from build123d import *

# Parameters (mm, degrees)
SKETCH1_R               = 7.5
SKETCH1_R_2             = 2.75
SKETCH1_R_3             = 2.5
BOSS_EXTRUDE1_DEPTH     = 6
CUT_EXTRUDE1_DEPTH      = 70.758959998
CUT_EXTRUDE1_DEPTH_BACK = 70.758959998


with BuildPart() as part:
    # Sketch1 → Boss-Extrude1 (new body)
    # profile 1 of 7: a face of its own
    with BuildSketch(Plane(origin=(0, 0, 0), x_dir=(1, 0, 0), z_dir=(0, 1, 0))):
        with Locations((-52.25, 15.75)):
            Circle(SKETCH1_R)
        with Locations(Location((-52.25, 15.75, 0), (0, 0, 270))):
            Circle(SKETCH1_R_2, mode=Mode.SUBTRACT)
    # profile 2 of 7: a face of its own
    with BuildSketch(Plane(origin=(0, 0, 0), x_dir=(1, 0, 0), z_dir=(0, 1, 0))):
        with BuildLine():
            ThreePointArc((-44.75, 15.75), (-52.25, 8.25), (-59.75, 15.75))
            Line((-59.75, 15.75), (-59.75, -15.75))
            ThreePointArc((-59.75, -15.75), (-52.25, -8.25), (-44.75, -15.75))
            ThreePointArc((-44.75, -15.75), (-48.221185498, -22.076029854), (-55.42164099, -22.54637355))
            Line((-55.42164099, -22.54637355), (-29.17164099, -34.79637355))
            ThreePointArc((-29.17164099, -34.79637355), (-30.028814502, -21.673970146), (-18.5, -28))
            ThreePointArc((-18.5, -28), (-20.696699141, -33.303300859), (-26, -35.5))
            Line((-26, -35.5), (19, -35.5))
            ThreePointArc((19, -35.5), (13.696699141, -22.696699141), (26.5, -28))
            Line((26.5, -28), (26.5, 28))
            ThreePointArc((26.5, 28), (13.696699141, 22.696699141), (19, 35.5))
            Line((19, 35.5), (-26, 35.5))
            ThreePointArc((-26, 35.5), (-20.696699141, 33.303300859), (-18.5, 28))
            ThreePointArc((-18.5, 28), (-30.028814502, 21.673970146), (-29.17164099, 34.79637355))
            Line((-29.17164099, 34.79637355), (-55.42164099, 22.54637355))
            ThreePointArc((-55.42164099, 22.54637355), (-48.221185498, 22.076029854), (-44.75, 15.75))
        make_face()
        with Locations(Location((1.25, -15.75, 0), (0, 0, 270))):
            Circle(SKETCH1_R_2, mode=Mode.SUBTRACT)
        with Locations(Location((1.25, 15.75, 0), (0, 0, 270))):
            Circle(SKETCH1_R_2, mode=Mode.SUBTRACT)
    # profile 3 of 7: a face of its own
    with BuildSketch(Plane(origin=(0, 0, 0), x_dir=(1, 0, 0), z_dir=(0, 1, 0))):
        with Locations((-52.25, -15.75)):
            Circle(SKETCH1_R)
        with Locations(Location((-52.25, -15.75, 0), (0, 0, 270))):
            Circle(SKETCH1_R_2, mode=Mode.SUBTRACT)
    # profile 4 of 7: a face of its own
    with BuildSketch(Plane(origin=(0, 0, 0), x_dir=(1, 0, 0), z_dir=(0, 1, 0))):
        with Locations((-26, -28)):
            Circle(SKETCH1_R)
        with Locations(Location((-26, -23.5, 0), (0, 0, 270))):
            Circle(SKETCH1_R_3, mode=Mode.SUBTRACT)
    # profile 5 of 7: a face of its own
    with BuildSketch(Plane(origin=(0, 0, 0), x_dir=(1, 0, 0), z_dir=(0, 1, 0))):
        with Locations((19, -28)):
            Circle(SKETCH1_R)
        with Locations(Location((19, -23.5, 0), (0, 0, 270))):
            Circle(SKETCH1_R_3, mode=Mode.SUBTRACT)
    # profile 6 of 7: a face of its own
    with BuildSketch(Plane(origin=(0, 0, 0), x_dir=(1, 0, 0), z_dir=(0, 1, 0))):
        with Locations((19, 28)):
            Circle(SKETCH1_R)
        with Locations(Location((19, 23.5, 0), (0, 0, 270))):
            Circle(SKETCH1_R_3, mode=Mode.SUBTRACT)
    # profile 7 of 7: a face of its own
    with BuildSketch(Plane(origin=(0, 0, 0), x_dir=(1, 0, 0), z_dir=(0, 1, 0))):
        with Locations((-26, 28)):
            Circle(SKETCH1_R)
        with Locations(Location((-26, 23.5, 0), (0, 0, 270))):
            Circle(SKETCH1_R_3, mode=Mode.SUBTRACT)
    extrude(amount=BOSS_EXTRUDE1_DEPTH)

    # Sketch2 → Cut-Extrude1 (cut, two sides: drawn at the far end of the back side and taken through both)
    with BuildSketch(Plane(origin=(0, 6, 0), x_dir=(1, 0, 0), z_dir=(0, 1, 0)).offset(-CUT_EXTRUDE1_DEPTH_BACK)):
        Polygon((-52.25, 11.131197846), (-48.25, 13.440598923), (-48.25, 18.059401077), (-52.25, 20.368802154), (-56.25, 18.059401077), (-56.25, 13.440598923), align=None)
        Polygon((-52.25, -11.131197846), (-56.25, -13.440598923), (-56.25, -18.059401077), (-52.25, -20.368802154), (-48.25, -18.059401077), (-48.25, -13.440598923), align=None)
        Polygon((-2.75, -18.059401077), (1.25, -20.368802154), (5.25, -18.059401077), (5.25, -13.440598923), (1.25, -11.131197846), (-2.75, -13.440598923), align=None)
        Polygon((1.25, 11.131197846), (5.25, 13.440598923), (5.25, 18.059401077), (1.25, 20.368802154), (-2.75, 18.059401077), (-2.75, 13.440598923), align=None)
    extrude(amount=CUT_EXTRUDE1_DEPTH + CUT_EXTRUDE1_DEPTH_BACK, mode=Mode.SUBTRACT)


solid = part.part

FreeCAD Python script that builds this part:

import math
import FreeCAD as App
import Part
import Sketcher

V = App.Vector
Q = App.Units.Quantity

doc = App.newDocument("Part")
params = doc.addObject("Spreadsheet::Sheet", "Params")
for row, (alias, value) in enumerate([
    ("sketch1_diameter", "5 mm"),
    ("sketch1_diameter2", "5.5 mm"),
    ("sketch1_radius", "7.5 mm"),
    ("sketch1_width", "45 mm"),
    ("sketch1_height", "56 mm"),
    ("pad1_length", "6 mm"),
], start=1):
    params.set(f"A{row}", alias)
    params.set(f"B{row}", "=" + value)
    params.setAlias(f"B{row}", alias)

body = doc.addObject("PartDesign::Body", "Body")

sketch1 = body.newObject("Sketcher::SketchObject", "Sketch")
sketch1.AttachmentSupport = (doc.getObject("XZ_Plane"), [""])
sketch1.MapMode = "FlatFace"
sketch1.addGeometry([
    Part.ArcOfCircle(Part.Circle(V(-52.2, -15.8, 0), V(0, 0, 1), 7.5), math.radians(180), math.radians(245)),
    Part.LineSegment(V(-59.8, -15.8, 0), V(-59.8, 15.8, 0)),
    Part.ArcOfCircle(Part.Circle(V(-52.2, 15.8, 0), V(0, 0, 1), 7.5), math.radians(115), math.radians(180)),
    Part.LineSegment(V(-55.4, 22.5, 0), V(-29.2, 34.8, 0)),
    Part.ArcOfCircle(Part.Circle(V(-26, 28, 0), V(0, 0, 1), 7.5), math.radians(90), math.radians(115)),
    Part.LineSegment(V(-26, 35.5, 0), V(19, 35.5, 0)),
    Part.ArcOfCircle(Part.Circle(V(19, 28, 0), V(0, 0, 1), 7.5), math.radians(0), math.radians(90)),
    Part.LineSegment(V(26.5, 28, 0), V(26.5, -28, 0)),
    Part.ArcOfCircle(Part.Circle(V(19, -28, 0), V(0, 0, 1), 7.5), math.radians(-90), math.radians(0)),
    Part.LineSegment(V(19, -35.5, 0), V(-26, -35.5, 0)),
    Part.ArcOfCircle(Part.Circle(V(-26, -28, 0), V(0, 0, 1), 7.5), math.radians(-115), math.radians(-90)),
    Part.LineSegment(V(-29.2, -34.8, 0), V(-55.4, -22.5, 0)),
    Part.Circle(V(-52.2, -15.8, 0), V(0, 0, 1), 2.8),
    Part.Circle(V(1.2, 15.8, 0), V(0, 0, 1), 2.8),
    Part.Circle(V(1.2, -15.8, 0), V(0, 0, 1), 2.8),
    Part.Circle(V(-52.2, 15.8, 0), V(0, 0, 1), 2.8),
    Part.Circle(V(-26, -23.5, 0), V(0, 0, 1), 2.5),
    Part.Circle(V(-26, 23.5, 0), V(0, 0, 1), 2.5),
    Part.Circle(V(19, -23.5, 0), V(0, 0, 1), 2.5),
    Part.Circle(V(19, 23.5, 0), V(0, 0, 1), 2.5),
], False)
sketch1.addConstraint([
    Sketcher.Constraint("Tangent", 0, 1, 1, 1),
    Sketcher.Constraint("Tangent", 1, 2, 2, 2),
    Sketcher.Constraint("Tangent", 2, 1, 3, 1),
    Sketcher.Constraint("Tangent", 3, 2, 4, 2),
    Sketcher.Constraint("Tangent", 4, 1, 5, 1),
    Sketcher.Constraint("Tangent", 5, 2, 6, 2),
    Sketcher.Constraint("Tangent", 6, 1, 7, 1),
    Sketcher.Constraint("Tangent", 7, 2, 8, 2),
    Sketcher.Constraint("Tangent", 8, 1, 9, 1),
    Sketcher.Constraint("Tangent", 9, 2, 10, 2),
    Sketcher.Constraint("Tangent", 10, 1, 11, 1),
    Sketcher.Constraint("Tangent", 11, 2, 0, 2),
    Sketcher.Constraint("Vertical", 1),
    Sketcher.Constraint("Horizontal", 5),
    Sketcher.Constraint("Vertical", 7),
    Sketcher.Constraint("Horizontal", 9),
    Sketcher.Constraint("Coincident", 12, 3, 0, 3),
    Sketcher.Constraint("Coincident", 15, 3, 2, 3),
    Sketcher.Constraint("Equal", 0, 2),
    Sketcher.Constraint("Equal", 2, 4),
    Sketcher.Constraint("Equal", 4, 6),
    Sketcher.Constraint("Equal", 6, 8),
    Sketcher.Constraint("Equal", 8, 10),
    Sketcher.Constraint("Equal", 12, 13),
    Sketcher.Constraint("Equal", 13, 14),
    Sketcher.Constraint("Equal", 14, 15),
    Sketcher.Constraint("Equal", 16, 17),
    Sketcher.Constraint("Equal", 17, 18),
    Sketcher.Constraint("Equal", 18, 19),
    Sketcher.Constraint("Symmetric", 4, 3, 10, 3, -1),
    Sketcher.Constraint("Symmetric", 13, 3, 14, 3, -1),
    Sketcher.Constraint("Symmetric", 16, 3, 17, 3, -1),
    Sketcher.Constraint("Symmetric", 18, 3, 19, 3, -1),
    Sketcher.Constraint("Horizontal", 2, 3, 13, 3),
    Sketcher.Constraint("Horizontal", 12, 3, 14, 3),
    Sketcher.Constraint("Horizontal", 16, 3, 18, 3),
    Sketcher.Constraint("Vertical", 10, 3, 16, 3),
    Sketcher.Constraint("Vertical", 8, 3, 18, 3),
    Sketcher.Constraint("Diameter", 16, 5.0),
    Sketcher.Constraint("Diameter", 12, 5.5),
    Sketcher.Constraint("Radius", 0, 7.5),
    Sketcher.Constraint("DistanceX", 5, 1, 5, 2, 45.0),
    Sketcher.Constraint("DistanceY", 7, 2, 7, 1, 56.0),
    Sketcher.Constraint("DistanceY", 1, 1, 1, 2, 31.5),
    Sketcher.Constraint("DistanceX", 4, 3, -1, 1, 26.0),
    Sketcher.Constraint("DistanceY", 17, 3, 4, 1, 12.0),
    Sketcher.Constraint("DistanceX", 2, 3, 13, 3, 53.5),
    Sketcher.Constraint("DistanceX", 0, 3, -1, 1, 52.25),
])
sketch1.setExpression("Constraints[38]", "Params.sketch1_diameter")
sketch1.setExpression("Constraints[39]", "Params.sketch1_diameter2")
sketch1.setExpression("Constraints[40]", "Params.sketch1_radius")
sketch1.setExpression("Constraints[41]", "Params.sketch1_width")
sketch1.setExpression("Constraints[42]", "Params.sketch1_height")
pad1 = body.newObject("PartDesign::Pad", "Pad")
pad1.Profile = sketch1
pad1.setExpression("Length", "Params.pad1_length")
pad1.Reversed = True

sketch2 = body.newObject("Sketcher::SketchObject", "Sketch001")
sketch2.AttachmentSupport = (doc.getObject("XZ_Plane"), [""])
sketch2.MapMode = "FlatFace"
sketch2.AttachmentOffset = App.Placement(V(0, 0, -6), App.Rotation())
sketch2.addGeometry([
    Part.LineSegment(V(-52.2, -11.1, 0), V(-48.2, -13.4, 0)),
    Part.LineSegment(V(-48.2, -13.4, 0), V(-48.2, -18.1, 0)),
    Part.LineSegment(V(-48.2, -18.1, 0), V(-52.2, -20.4, 0)),
    Part.LineSegment(V(-52.2, -20.4, 0), V(-56.2, -18.1, 0)),
    Part.LineSegment(V(-56.2, -18.1, 0), V(-56.2, -13.4, 0)),
    Part.LineSegment(V(-56.2, -13.4, 0), V(-52.2, -11.1, 0)),
    Part.LineSegment(V(-52.2, 11.1, 0), V(-56.2, 13.4, 0)),
    Part.LineSegment(V(-56.2, 13.4, 0), V(-56.2, 18.1, 0)),
    Part.LineSegment(V(-56.2, 18.1, 0), V(-52.2, 20.4, 0)),
    Part.LineSegment(V(-52.2, 20.4, 0), V(-48.2, 18.1, 0)),
    Part.LineSegment(V(-48.2, 18.1, 0), V(-48.2, 13.4, 0)),
    Part.LineSegment(V(-48.2, 13.4, 0), V(-52.2, 11.1, 0)),
    Part.LineSegment(V(-2.8, 18.1, 0), V(1.2, 20.4, 0)),
    Part.LineSegment(V(1.2, 20.4, 0), V(5.2, 18.1, 0)),
    Part.LineSegment(V(5.2, 18.1, 0), V(5.2, 13.4, 0)),
    Part.LineSegment(V(5.2, 13.4, 0), V(1.2, 11.1, 0)),
    Part.LineSegment(V(1.2, 11.1, 0), V(-2.8, 13.4, 0)),
    Part.LineSegment(V(-2.8, 13.4, 0), V(-2.8, 18.1, 0)),
    Part.LineSegment(V(1.2, -11.1, 0), V(5.2, -13.4, 0)),
    Part.LineSegment(V(5.2, -13.4, 0), V(5.2, -18.1, 0)),
    Part.LineSegment(V(5.2, -18.1, 0), V(1.2, -20.4, 0)),
    Part.LineSegment(V(1.2, -20.4, 0), V(-2.8, -18.1, 0)),
    Part.LineSegment(V(-2.8, -18.1, 0), V(-2.8, -13.4, 0)),
    Part.LineSegment(V(-2.8, -13.4, 0), V(1.2, -11.1, 0)),
], False)
sketch2.addConstraint([
    Sketcher.Constraint("Coincident", 0, 2, 1, 1),
    Sketcher.Constraint("Coincident", 1, 2, 2, 1),
    Sketcher.Constraint("Coincident", 2, 2, 3, 1),
    Sketcher.Constraint("Coincident", 3, 2, 4, 1),
    Sketcher.Constraint("Coincident", 4, 2, 5, 1),
    Sketcher.Constraint("Coincident", 5, 2, 0, 1),
    Sketcher.Constraint("Coincident", 6, 2, 7, 1),
    Sketcher.Constraint("Coincident", 7, 2, 8, 1),
    Sketcher.Constraint("Coincident", 8, 2, 9, 1),
    Sketcher.Constraint("Coincident", 9, 2, 10, 1),
    Sketcher.Constraint("Coincident", 10, 2, 11, 1),
    Sketcher.Constraint("Coincident", 11, 2, 6, 1),
    Sketcher.Constraint("Coincident", 12, 2, 13, 1),
    Sketcher.Constraint("Coincident", 13, 2, 14, 1),
    Sketcher.Constraint("Coincident", 14, 2, 15, 1),
    Sketcher.Constraint("Coincident", 15, 2, 16, 1),
    Sketcher.Constraint("Coincident", 16, 2, 17, 1),
    Sketcher.Constraint("Coincident", 17, 2, 12, 1),
    Sketcher.Constraint("Coincident", 18, 2, 19, 1),
    Sketcher.Constraint("Coincident", 19, 2, 20, 1),
    Sketcher.Constraint("Coincident", 20, 2, 21, 1),
    Sketcher.Constraint("Coincident", 21, 2, 22, 1),
    Sketcher.Constraint("Coincident", 22, 2, 23, 1),
    Sketcher.Constraint("Coincident", 23, 2, 18, 1),
    Sketcher.Constraint("Vertical", 1),
    Sketcher.Constraint("Vertical", 4),
    Sketcher.Constraint("Vertical", 7),
    Sketcher.Constraint("Vertical", 10),
    Sketcher.Constraint("Vertical", 14),
    Sketcher.Constraint("Vertical", 17),
    Sketcher.Constraint("Vertical", 19),
    Sketcher.Constraint("Vertical", 22),
    Sketcher.Constraint("Symmetric", 4, 2, 6, 2, -1),
    Sketcher.Constraint("Symmetric", 2, 2, 8, 2, -1),
    Sketcher.Constraint("Symmetric", 1, 2, 9, 2, -1),
    Sketcher.Constraint("Symmetric", 5, 2, 11, 2, -1),
    Sketcher.Constraint("Symmetric", 14, 2, 18, 2, -1),
    Sketcher.Constraint("Symmetric", 12, 2, 20, 2, -1),
    Sketcher.Constraint("Symmetric", 17, 2, 21, 2, -1),
    Sketcher.Constraint("Symmetric", 15, 2, 23, 2, -1),
    Sketcher.Constraint("Parallel", 0, 3),
    Sketcher.Constraint("Parallel", 2, 5),
    Sketcher.Constraint("Parallel", 3, 6),
    Sketcher.Constraint("Parallel", 5, 8),
    Sketcher.Constraint("Parallel", 8, 11),
    Sketcher.Constraint("Parallel", 11, 12),
    Sketcher.Constraint("Parallel", 9, 13),
    Sketcher.Constraint("Parallel", 12, 15),
    Sketcher.Constraint("Parallel", 13, 16),
    Sketcher.Constraint("Parallel", 15, 20),
    Sketcher.Constraint("Parallel", 20, 23),
    Sketcher.Constraint("Horizontal", 1, 2, 3, 2),
    Sketcher.Constraint("Horizontal", 0, 2, 4, 2),
    Sketcher.Constraint("Horizontal", 8, 2, 12, 2),
    Sketcher.Constraint("Horizontal", 9, 2, 13, 2),
    Sketcher.Constraint("Horizontal", 10, 2, 14, 2),
    Sketcher.Constraint("Horizontal", 11, 2, 15, 2),
    Sketcher.Constraint("Horizontal", 14, 2, 16, 2),
    Sketcher.Constraint("Angle", 0, Q("-30 deg")),
    Sketcher.Constraint("DistanceX", 2, 2, 1, 2, 4.0),
    Sketcher.Constraint("DistanceY", 3, 2, 6, 2, 31.5),
    Sketcher.Constraint("DistanceX", 9, 2, 12, 2, 49.5),
    Sketcher.Constraint("DistanceX", 0, 2, -1, 1, 48.25),
    Sketcher.Constraint("DistanceY", 0, 2, -1, 1, 13.440599),
])
pocket1 = body.newObject("PartDesign::Pocket", "Pocket")
pocket1.Profile = sketch2
pocket1.Type = "ThroughAll"
pocket1.Midplane = True

doc.recompute()
